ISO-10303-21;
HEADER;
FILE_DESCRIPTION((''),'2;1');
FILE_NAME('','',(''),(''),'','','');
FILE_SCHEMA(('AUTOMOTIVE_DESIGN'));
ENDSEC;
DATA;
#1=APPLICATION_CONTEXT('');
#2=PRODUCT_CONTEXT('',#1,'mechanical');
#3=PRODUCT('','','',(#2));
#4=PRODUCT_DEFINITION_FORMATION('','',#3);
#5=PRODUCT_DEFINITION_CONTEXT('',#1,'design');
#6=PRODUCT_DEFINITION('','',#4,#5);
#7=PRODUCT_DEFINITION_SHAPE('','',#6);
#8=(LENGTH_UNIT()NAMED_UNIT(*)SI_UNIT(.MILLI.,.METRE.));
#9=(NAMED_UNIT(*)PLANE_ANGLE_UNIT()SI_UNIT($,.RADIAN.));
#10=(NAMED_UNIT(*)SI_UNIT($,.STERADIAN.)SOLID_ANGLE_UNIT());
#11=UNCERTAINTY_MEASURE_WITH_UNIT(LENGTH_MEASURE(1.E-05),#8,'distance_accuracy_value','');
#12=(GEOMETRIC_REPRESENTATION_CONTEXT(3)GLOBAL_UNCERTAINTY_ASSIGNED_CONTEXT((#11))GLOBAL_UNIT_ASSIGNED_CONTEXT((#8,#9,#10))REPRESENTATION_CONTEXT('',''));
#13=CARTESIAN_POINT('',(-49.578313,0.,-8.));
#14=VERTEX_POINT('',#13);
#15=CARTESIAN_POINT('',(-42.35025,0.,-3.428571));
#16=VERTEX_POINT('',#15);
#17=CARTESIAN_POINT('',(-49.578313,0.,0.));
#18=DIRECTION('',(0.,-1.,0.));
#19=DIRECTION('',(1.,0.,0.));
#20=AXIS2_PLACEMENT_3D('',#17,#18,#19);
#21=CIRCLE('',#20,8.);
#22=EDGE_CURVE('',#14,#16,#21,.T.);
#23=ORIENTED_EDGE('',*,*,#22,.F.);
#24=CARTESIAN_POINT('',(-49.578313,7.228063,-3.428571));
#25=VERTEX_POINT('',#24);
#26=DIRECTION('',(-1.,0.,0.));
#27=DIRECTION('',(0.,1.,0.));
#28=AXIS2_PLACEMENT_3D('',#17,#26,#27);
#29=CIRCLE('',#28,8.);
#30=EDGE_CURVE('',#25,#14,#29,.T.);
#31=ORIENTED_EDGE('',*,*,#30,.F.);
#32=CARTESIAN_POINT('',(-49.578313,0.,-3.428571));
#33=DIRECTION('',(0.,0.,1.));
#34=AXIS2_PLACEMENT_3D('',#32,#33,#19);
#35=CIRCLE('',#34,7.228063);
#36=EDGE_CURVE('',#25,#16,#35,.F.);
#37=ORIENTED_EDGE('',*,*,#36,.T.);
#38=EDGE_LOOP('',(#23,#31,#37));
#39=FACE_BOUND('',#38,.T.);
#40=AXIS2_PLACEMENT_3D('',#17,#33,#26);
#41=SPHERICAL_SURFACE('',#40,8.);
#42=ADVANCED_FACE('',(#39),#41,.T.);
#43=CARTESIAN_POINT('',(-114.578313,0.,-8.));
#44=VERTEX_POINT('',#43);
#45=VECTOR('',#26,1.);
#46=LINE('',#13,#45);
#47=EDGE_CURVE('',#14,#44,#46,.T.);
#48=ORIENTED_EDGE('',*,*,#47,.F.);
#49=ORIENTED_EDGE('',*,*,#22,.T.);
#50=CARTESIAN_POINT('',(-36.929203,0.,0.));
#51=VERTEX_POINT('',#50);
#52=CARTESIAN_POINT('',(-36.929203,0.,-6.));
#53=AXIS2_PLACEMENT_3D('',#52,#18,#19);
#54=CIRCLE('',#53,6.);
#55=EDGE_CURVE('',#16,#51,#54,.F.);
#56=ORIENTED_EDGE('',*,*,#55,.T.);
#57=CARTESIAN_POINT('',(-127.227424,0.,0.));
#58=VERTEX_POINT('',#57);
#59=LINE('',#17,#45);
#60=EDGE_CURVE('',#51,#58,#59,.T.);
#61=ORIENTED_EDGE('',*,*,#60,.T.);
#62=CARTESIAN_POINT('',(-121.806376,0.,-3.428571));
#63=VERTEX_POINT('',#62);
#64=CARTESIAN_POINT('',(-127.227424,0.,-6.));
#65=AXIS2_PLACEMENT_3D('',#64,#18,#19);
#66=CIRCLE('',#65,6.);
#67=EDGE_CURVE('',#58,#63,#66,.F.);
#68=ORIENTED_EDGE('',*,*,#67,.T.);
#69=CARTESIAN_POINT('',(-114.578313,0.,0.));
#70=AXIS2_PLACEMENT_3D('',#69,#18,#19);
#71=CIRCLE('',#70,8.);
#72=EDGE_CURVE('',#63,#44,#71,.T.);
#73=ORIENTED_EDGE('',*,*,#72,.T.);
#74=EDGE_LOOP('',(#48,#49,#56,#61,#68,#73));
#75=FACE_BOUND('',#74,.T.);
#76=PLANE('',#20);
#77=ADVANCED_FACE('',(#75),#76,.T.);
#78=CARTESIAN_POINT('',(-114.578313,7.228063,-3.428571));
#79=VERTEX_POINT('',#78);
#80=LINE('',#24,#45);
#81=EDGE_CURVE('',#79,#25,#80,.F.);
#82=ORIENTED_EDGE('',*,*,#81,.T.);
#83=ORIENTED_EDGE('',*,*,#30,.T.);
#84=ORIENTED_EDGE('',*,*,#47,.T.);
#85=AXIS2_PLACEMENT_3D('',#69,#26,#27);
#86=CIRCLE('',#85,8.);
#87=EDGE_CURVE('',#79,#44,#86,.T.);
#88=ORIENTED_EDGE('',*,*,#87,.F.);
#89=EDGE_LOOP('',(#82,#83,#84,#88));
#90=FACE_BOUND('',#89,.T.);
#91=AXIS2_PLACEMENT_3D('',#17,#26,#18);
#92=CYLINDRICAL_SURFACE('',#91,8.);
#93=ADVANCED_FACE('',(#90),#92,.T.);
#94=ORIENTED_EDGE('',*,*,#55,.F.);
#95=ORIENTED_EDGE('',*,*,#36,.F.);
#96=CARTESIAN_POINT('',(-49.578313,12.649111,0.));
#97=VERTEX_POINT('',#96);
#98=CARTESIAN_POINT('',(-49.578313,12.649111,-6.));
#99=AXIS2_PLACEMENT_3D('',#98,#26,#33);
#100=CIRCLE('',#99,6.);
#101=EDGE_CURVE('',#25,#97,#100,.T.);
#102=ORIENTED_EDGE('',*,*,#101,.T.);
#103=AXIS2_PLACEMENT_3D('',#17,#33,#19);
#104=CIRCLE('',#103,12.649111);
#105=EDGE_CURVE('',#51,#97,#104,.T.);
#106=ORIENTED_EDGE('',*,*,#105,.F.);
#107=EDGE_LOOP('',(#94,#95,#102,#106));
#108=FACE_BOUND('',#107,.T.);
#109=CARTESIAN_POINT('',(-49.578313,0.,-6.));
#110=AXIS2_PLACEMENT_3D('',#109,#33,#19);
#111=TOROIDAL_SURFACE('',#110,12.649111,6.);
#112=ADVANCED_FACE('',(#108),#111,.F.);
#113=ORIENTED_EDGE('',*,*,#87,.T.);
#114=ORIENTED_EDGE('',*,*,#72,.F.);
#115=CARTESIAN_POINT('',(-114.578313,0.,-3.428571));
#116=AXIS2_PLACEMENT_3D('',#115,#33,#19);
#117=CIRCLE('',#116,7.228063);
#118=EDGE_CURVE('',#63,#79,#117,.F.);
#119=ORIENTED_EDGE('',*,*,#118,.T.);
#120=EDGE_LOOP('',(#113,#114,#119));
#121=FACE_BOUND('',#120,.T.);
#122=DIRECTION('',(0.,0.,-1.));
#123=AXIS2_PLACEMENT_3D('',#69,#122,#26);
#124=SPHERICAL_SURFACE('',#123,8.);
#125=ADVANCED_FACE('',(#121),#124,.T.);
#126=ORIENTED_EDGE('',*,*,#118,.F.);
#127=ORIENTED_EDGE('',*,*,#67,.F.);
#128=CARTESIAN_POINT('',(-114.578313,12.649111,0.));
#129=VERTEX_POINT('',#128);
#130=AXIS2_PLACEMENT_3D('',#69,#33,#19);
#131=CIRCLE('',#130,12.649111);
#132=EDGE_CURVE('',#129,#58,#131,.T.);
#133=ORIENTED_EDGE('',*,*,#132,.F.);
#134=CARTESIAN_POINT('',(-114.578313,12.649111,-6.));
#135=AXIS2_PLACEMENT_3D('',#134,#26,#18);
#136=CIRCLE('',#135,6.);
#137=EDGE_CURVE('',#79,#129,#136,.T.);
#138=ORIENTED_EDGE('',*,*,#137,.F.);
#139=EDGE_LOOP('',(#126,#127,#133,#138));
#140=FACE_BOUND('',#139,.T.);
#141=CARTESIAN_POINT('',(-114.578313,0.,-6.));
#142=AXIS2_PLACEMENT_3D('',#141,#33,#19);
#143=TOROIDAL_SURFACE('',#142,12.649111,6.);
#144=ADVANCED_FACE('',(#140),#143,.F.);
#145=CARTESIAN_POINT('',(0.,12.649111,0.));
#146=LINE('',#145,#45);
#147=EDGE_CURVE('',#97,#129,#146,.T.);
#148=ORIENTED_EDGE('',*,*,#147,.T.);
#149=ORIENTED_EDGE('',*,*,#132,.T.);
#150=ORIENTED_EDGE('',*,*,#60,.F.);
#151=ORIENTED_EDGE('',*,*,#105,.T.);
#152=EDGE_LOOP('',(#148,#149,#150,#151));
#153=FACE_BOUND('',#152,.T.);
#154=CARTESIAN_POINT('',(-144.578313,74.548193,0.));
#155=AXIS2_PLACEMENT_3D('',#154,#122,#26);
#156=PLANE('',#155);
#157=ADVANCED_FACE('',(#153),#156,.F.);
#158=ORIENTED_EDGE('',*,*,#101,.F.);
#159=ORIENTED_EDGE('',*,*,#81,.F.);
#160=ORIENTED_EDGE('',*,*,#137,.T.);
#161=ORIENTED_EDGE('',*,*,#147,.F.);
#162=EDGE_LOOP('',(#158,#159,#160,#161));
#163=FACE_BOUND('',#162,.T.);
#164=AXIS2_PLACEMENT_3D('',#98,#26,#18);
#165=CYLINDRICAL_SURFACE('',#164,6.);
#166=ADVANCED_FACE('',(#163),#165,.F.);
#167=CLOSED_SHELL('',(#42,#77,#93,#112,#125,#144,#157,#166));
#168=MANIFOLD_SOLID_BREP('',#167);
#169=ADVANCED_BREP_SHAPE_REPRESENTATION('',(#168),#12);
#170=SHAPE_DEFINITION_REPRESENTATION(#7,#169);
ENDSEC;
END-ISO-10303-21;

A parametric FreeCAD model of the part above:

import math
import FreeCAD as App
import Part
import Sketcher
Q = App.Units.Quantity


def edges_at(feature, points):
    """Names of the edges that pass closest to the given points."""
    edges = feature.Shape.Edges
    near = lambda p: min(range(len(edges)), key=lambda i: edges[i].distToShape(Part.Vertex(*p))[0])
    return sorted({f"Edge{near(p) + 1}" for p in points})

doc = App.newDocument("Part")
body = doc.addObject("PartDesign::Body", "Body")

sketch1 = body.newObject("Sketcher::SketchObject", "Sketch")
sketch1.AttachmentSupport = (doc.getObject("XY_Plane"), [""])
sketch1.MapMode = "FlatFace"
sketch1.addGeometry([
    Part.LineSegment(App.Vector(-145, 75, 0), App.Vector(-145, -75, 0)),
    Part.LineSegment(App.Vector(-145, -75, 0), App.Vector(5, -75, 0)),
    Part.LineSegment(App.Vector(5, -75, 0), App.Vector(5, 75, 0)),
    Part.LineSegment(App.Vector(5, 75, 0), App.Vector(-145, 75, 0)),
], False)
sketch1.addConstraint([
    Sketcher.Constraint("Coincident", 0, 2, 1, 1),
    Sketcher.Constraint("Coincident", 1, 2, 2, 1),
    Sketcher.Constraint("Coincident", 2, 2, 3, 1),
    Sketcher.Constraint("Coincident", 3, 2, 0, 1),
    Sketcher.Constraint("Vertical", 0),
    Sketcher.Constraint("Horizontal", 1),
    Sketcher.Constraint("Vertical", 2),
    Sketcher.Constraint("Horizontal", 3),
    Sketcher.Constraint("Equal", 3, 0),
    Sketcher.Constraint("DistanceX", 1, 1, 1, 2, Q("150 mm")),
    Sketcher.Constraint("DistanceX", 0, 2, -1, 1, Q("144.578313 mm")),
    Sketcher.Constraint("DistanceY", 0, 2, -1, 1, Q("75.451807 mm")),
])
pad1 = body.newObject("PartDesign::Pad", "Pad")
pad1.Profile = sketch1
pad1.Length = 10

sketch2 = body.newObject("Sketcher::SketchObject", "Sketch001")
sketch2.AttachmentSupport = (doc.getObject("YZ_Plane"), [""])
sketch2.MapMode = "FlatFace"
sketch2.AttachmentOffset = App.Placement(App.Vector(0, 0, -114.578313), App.Rotation())
sketch2.addGeometry([
    Part.LineSegment(App.Vector(0, 0, 0), App.Vector(8, 0, 0)),
    Part.ArcOfCircle(Part.Circle(App.Vector(0, 0, 0), App.Vector(0, 0, 1), 8), math.radians(-90), math.radians(0)),
    Part.LineSegment(App.Vector(0, -8, 0), App.Vector(0, 0, 0)),
], False)
sketch2.addConstraint([
    Sketcher.Constraint("Coincident", 0, 2, 1, 2),
    Sketcher.Constraint("Coincident", 1, 1, 2, 1),
    Sketcher.Constraint("Coincident", 2, 2, 0, 1),
    Sketcher.Constraint("Horizontal", 0),
    Sketcher.Constraint("Vertical", 2),
    Sketcher.Constraint("Coincident", 1, 3, -1, 1),
    Sketcher.Constraint("Coincident", 2, 2, -1, 1),
    Sketcher.Constraint("Radius", 1, Q("8 mm")),
])
pad2 = body.newObject("PartDesign::Pad", "Pad001")
pad2.Profile = sketch2
pad2.Length = 65

sketch3 = body.newObject("Sketcher::SketchObject", "Sketch002")
sketch3.AttachmentSupport = (doc.getObject("YZ_Plane"), [""])
sketch3.MapMode = "FlatFace"
sketch3.AttachmentOffset = App.Placement(App.Vector(0, 0, -114.578313), App.Rotation())
sketch3.addGeometry([
    Part.LineSegment(App.Vector(0, -8, 0), App.Vector(0, 0, 0)),
    Part.LineSegment(App.Vector(0, 0, 0), App.Vector(8, 0, 0)),
    Part.ArcOfCircle(Part.Circle(App.Vector(0, 0, 0), App.Vector(0, 0, 1), 8), math.radians(-90), math.radians(0)),
], False)
sketch3.addConstraint([
    Sketcher.Constraint("Coincident", 0, 2, 1, 1),
    Sketcher.Constraint("Coincident", 1, 2, 2, 2),
    Sketcher.Constraint("Coincident", 2, 1, 0, 1),
    Sketcher.Constraint("Vertical", 0),
    Sketcher.Constraint("Horizontal", 1),
    Sketcher.Constraint("Coincident", 2, 3, -1, 1),
    Sketcher.Constraint("Coincident", 0, 2, -1, 1),
    Sketcher.Constraint("Radius", 2, Q("8 mm")),
])
revolution = body.newObject("PartDesign::Revolution", "Revolution")
revolution.Profile = sketch3
revolution.ReferenceAxis = (sketch3, ["V_Axis"])
revolution.Angle = 90

sketch4 = body.newObject("Sketcher::SketchObject", "Sketch003")
sketch4.AttachmentSupport = (doc.getObject("YZ_Plane"), [""])
sketch4.MapMode = "FlatFace"
sketch4.AttachmentOffset = App.Placement(App.Vector(0, 0, -49.578313), App.Rotation())
sketch4.addGeometry([
    Part.LineSegment(App.Vector(8, 0, 0), App.Vector(0, 0, 0)),
    Part.LineSegment(App.Vector(0, 0, 0), App.Vector(0, -8, 0)),
    Part.ArcOfCircle(Part.Circle(App.Vector(0, 0, 0), App.Vector(0, 0, 1), 8), math.radians(-90), math.radians(0)),
], False)
sketch4.addConstraint([
    Sketcher.Constraint("Coincident", 0, 2, 1, 1),
    Sketcher.Constraint("Coincident", 1, 2, 2, 1),
    Sketcher.Constraint("Coincident", 2, 2, 0, 1),
    Sketcher.Constraint("Horizontal", 0),
    Sketcher.Constraint("Vertical", 1),
    Sketcher.Constraint("Coincident", 2, 3, -1, 1),
    Sketcher.Constraint("Coincident", 0, 2, -1, 1),
    Sketcher.Constraint("Radius", 2, Q("8 mm")),
])
revolution2 = body.newObject("PartDesign::Revolution", "Revolution001")
revolution2.Profile = sketch4
revolution2.ReferenceAxis = (sketch4, ["V_Axis"])
revolution2.Angle = 90
revolution2.Reversed = True
doc.recompute()

fillet = body.newObject("PartDesign::Fillet", "Fillet")
fillet.Base = (revolution2, edges_at(revolution2, [(-82.078, 8, 0), (-120.235, 5.657, 0), (-43.921, 5.657, 0)]))
fillet.Radius = 6

sketch5 = body.newObject("Sketcher::SketchObject", "Sketch004")
sketch5.AttachmentSupport = (doc.getObject("XZ_Plane"), [""])
sketch5.MapMode = "FlatFace"
sketch5.AttachmentOffset = App.Placement(App.Vector(0, 0, 75.451807), App.Rotation())
sketch5.addGeometry([
    Part.LineSegment(App.Vector(-145, 10, 0), App.Vector(-145, 0, 0)),
    Part.LineSegment(App.Vector(-145, 0, 0), App.Vector(5, 0, 0)),
    Part.LineSegment(App.Vector(5, 0, 0), App.Vector(5, 10, 0)),
    Part.LineSegment(App.Vector(5, 10, 0), App.Vector(-145, 10, 0)),
], False)
sketch5.addConstraint([
    Sketcher.Constraint("Coincident", 0, 2, 1, 1),
    Sketcher.Constraint("Coincident", 1, 2, 2, 1),
    Sketcher.Constraint("Coincident", 2, 2, 3, 1),
    Sketcher.Constraint("Coincident", 3, 2, 0, 1),
    Sketcher.Constraint("Vertical", 0),
    Sketcher.Constraint("Horizontal", 1),
    Sketcher.Constraint("Vertical", 2),
    Sketcher.Constraint("Horizontal", 3),
    Sketcher.Constraint("PointOnObject", 0, 2, -1),
    Sketcher.Constraint("DistanceX", 1, 1, 1, 2, Q("150 mm")),
    Sketcher.Constraint("DistanceY", 0, 2, 0, 1, Q("10 mm")),
    Sketcher.Constraint("DistanceX", 0, 2, -1, 1, Q("144.578313 mm")),
])
pocket1 = body.newObject("PartDesign::Pocket", "Pocket")
pocket1.Profile = sketch5
pocket1.Type = "ThroughAll"

doc.recompute()
